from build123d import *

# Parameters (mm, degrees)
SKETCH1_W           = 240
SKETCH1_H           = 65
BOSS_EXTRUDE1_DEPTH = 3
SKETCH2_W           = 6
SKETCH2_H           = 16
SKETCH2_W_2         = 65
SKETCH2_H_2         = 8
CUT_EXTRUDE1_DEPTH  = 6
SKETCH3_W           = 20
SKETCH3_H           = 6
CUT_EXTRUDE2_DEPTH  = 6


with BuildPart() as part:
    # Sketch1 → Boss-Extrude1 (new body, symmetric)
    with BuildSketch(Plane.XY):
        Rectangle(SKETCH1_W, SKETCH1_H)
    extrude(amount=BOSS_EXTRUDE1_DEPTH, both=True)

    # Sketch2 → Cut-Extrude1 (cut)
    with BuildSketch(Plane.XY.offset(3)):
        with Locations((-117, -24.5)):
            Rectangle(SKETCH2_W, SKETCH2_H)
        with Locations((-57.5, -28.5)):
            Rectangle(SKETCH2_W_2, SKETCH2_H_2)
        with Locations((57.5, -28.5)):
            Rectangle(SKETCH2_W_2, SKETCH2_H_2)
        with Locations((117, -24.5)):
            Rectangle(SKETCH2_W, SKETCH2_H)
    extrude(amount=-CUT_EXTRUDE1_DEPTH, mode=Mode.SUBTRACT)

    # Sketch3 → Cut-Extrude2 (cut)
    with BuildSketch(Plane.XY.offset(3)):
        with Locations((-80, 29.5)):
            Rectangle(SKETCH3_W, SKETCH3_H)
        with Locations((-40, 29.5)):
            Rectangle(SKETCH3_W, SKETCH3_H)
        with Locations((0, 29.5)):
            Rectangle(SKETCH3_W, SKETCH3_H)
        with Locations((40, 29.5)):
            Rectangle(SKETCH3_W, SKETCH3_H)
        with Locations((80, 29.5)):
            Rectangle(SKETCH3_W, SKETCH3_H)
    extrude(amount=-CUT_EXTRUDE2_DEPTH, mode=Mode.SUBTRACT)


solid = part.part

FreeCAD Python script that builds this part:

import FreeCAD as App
import Part
import Sketcher
from FreeCAD import Vector


def add_polygon(sketch, points):
    """Adds a closed chain of lines whose ends are joined by coincident constraints."""
    first, n = sketch.GeometryCount, len(points)
    for a, b in zip(points, points[1:] + points[:1]):
        sketch.addGeometry(Part.LineSegment(App.Vector(*a, 0), App.Vector(*b, 0)), False)
    for i in range(n):
        sketch.addConstraint(Sketcher.Constraint("Coincident", first + i, 2, first + (i + 1) % n, 1))

doc = App.newDocument("Part")
body = doc.addObject("PartDesign::Body", "Body")

sketch1 = doc.addObject("Sketcher::SketchObject", "Sketch")
body.addObject(sketch1)
sketch1.AttachmentSupport = (doc.XY_Plane, [""])
sketch1.MapMode = "FlatFace"
add_polygon(sketch1, [(-120, 32), (-120, -32), (120, -32), (120, 32)])
sketch1.addConstraint([
    Sketcher.Constraint("Vertical", 0),
    Sketcher.Constraint("Horizontal", 1),
    Sketcher.Constraint("Vertical", 2),
    Sketcher.Constraint("Horizontal", 3),
    Sketcher.Constraint("Symmetric", 0, 2, 2, 2, -1, 1),
    Sketcher.Constraint("DistanceX", 1, 1, 1, 2, 240.0),
    Sketcher.Constraint("DistanceY", 0, 2, 0, 1, 65.0),
])
pad1 = doc.addObject("PartDesign::Pad", "Pad")
body.addObject(pad1)
pad1.Profile = sketch1
pad1.Length = 6
pad1.Midplane = True

sketch2 = doc.addObject("Sketcher::SketchObject", "Sketch001")
body.addObject(sketch2)
sketch2.AttachmentSupport = (doc.XY_Plane, [""])
sketch2.MapMode = "FlatFace"
sketch2.AttachmentOffset = App.Placement(Vector(0, 0, 3), App.Rotation())
add_polygon(sketch2, [(-120, -16), (-120, -32), (-114, -32), (-114, -16)])
add_polygon(sketch2, [(-90, -24), (-90, -32), (-25, -32), (-25, -24)])
add_polygon(sketch2, [(25, -24), (25, -32), (90, -32), (90, -24)])
add_polygon(sketch2, [(114, -16), (114, -32), (120, -32), (120, -16)])
sketch2.addConstraint([
    Sketcher.Constraint("Vertical", 0),
    Sketcher.Constraint("Horizontal", 1),
    Sketcher.Constraint("Vertical", 2),
    Sketcher.Constraint("Horizontal", 3),
    Sketcher.Constraint("Vertical", 4),
    Sketcher.Constraint("Horizontal", 5),
    Sketcher.Constraint("Vertical", 6),
    Sketcher.Constraint("Horizontal", 7),
    Sketcher.Constraint("Vertical", 8),
    Sketcher.Constraint("Horizontal", 9),
    Sketcher.Constraint("Vertical", 10),
    Sketcher.Constraint("Horizontal", 11),
    Sketcher.Constraint("Vertical", 12),
    Sketcher.Constraint("Horizontal", 13),
    Sketcher.Constraint("Vertical", 14),
    Sketcher.Constraint("Horizontal", 15),
    Sketcher.Constraint("Symmetric", 5, 2, 8, 2, -2),
    Sketcher.Constraint("Symmetric", 7, 2, 10, 2, -2),
    Sketcher.Constraint("Symmetric", 1, 2, 12, 2, -2),
    Sketcher.Constraint("Symmetric", 3, 2, 14, 2, -2),
    Sketcher.Constraint("Horizontal", 1, 2, 4, 2),
    Sketcher.Constraint("DistanceX", 1, 1, 1, 2, 6.0),
    Sketcher.Constraint("DistanceX", 5, 1, 5, 2, 65.0),
    Sketcher.Constraint("DistanceY", 0, 2, 0, 1, 16.0),
    Sketcher.Constraint("DistanceY", 4, 2, 4, 1, 8.0),
    Sketcher.Constraint("DistanceX", 0, 2, -1, 1, 120.0),
    Sketcher.Constraint("DistanceX", 4, 2, -1, 1, 90.0),
    Sketcher.Constraint("DistanceY", 0, 2, -1, 1, 32.5),
])
pocket1 = doc.addObject("PartDesign::Pocket", "Pocket")
body.addObject(pocket1)
pocket1.Profile = sketch2
pocket1.Length = 6

sketch3 = doc.addObject("Sketcher::SketchObject", "Sketch002")
body.addObject(sketch3)
sketch3.AttachmentSupport = (doc.XY_Plane, [""])
sketch3.MapMode = "FlatFace"
sketch3.AttachmentOffset = App.Placement(Vector(0, 0, 3), App.Rotation())
add_polygon(sketch3, [(-90, 32), (-90, 26), (-70, 26), (-70, 32)])
add_polygon(sketch3, [(-50, 32), (-50, 26), (-30, 26), (-30, 32)])
add_polygon(sketch3, [(-10, 32), (-10, 26), (10, 26), (10, 32)])
add_polygon(sketch3, [(30, 32), (30, 26), (50, 26), (50, 32)])
add_polygon(sketch3, [(70, 32), (70, 26), (90, 26), (90, 32)])
sketch3.addConstraint([
    Sketcher.Constraint("Vertical", 0),
    Sketcher.Constraint("Horizontal", 1),
    Sketcher.Constraint("Vertical", 2),
    Sketcher.Constraint("Horizontal", 3),
    Sketcher.Constraint("Vertical", 4),
    Sketcher.Constraint("Horizontal", 5),
    Sketcher.Constraint("Vertical", 6),
    Sketcher.Constraint("Horizontal", 7),
    Sketcher.Constraint("Vertical", 8),
    Sketcher.Constraint("Horizontal", 9),
    Sketcher.Constraint("Vertical", 10),
    Sketcher.Constraint("Horizontal", 11),
    Sketcher.Constraint("Vertical", 12),
    Sketcher.Constraint("Horizontal", 13),
    Sketcher.Constraint("Vertical", 14),
    Sketcher.Constraint("Horizontal", 15),
    Sketcher.Constraint("Vertical", 16),
    Sketcher.Constraint("Horizontal", 17),
    Sketcher.Constraint("Vertical", 18),
    Sketcher.Constraint("Horizontal", 19),
    Sketcher.Constraint("Symmetric", 5, 2, 12, 2, -2),
    Sketcher.Constraint("Symmetric", 7, 2, 14, 2, -2),
    Sketcher.Constraint("Symmetric", 1, 2, 16, 2, -2),
    Sketcher.Constraint("Symmetric", 3, 2, 18, 2, -2),
    Sketcher.Constraint("Horizontal", 1, 2, 4, 2),
    Sketcher.Constraint("Horizontal", 3, 2, 6, 2),
    Sketcher.Constraint("Horizontal", 5, 2, 8, 2),
    Sketcher.Constraint("Horizontal", 7, 2, 10, 2),
    Sketcher.Constraint("Equal", 3, 5),
    Sketcher.Constraint("Equal", 7, 9),
    Sketcher.Constraint("DistanceX", 1, 1, 1, 2, 20.0),
    Sketcher.Constraint("DistanceY", 0, 2, 0, 1, 6.0),
    Sketcher.Constraint("DistanceX", 0, 2, -1, 1, 90.0),
    Sketcher.Constraint("DistanceX", 4, 2, -1, 1, 50.0),
    Sketcher.Constraint("DistanceX", 8, 2, -1, 1, 10.0),
    Sketcher.Constraint("DistanceY", -1, 1, 0, 2, 26.5),
])
pocket2 = doc.addObject("PartDesign::Pocket", "Pocket001")
body.addObject(pocket2)
pocket2.Profile = sketch3
pocket2.Length = 6

doc.recompute()
